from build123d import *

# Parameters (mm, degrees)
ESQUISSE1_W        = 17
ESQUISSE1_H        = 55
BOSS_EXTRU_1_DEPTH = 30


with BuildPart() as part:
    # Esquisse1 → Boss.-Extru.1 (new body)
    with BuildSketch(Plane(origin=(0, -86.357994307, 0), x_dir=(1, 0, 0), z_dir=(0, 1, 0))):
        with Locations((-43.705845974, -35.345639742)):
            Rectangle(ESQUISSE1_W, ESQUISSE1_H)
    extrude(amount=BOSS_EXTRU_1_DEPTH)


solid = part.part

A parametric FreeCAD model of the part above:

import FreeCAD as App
import Part
import Sketcher

V = App.Vector
Q = App.Units.Quantity


def add_polygon(sketch, points):
    """Adds a closed chain of lines whose ends are joined by coincident constraints."""
    first, n = sketch.GeometryCount, len(points)
    for a, b in zip(points, points[1:] + points[:1]):
        sketch.addGeometry(Part.LineSegment(App.Vector(*a, 0), App.Vector(*b, 0)), False)
    for i in range(n):
        sketch.addConstraint(Sketcher.Constraint("Coincident", first + i, 2, first + (i + 1) % n, 1))

doc = App.newDocument("Part")
params = doc.addObject("Spreadsheet::Sheet", "Params")
for row, (alias, value) in enumerate([
    ("sketch1_width", "17 mm"),
    ("sketch1_height", "55 mm"),
    ("pad1_length", "30 mm"),
], start=1):
    params.set(f"A{row}", alias)
    params.set(f"B{row}", "=" + value)
    params.setAlias(f"B{row}", alias)

body = doc.addObject("PartDesign::Body", "Body")

# Sketch on XZ plane
sketch1 = body.newObject("Sketcher::SketchObject", "Sketch")
sketch1.AttachmentSupport = (doc.getObject("XZ_Plane"), [""])
sketch1.MapMode = "FlatFace"
sketch1.AttachmentOffset = App.Placement(V(0, 0, 86.357994), App.Rotation())
add_polygon(sketch1, [(-52, 8), (-52, 63), (-35, 63), (-35, 8)])  # lines 0-3
sketch1.addConstraint(Sketcher.Constraint("Vertical", 0))
sketch1.addConstraint(Sketcher.Constraint("Horizontal", 1))
sketch1.addConstraint(Sketcher.Constraint("Vertical", 2))
sketch1.addConstraint(Sketcher.Constraint("Horizontal", 3))
sketch1.addConstraint(Sketcher.Constraint("DistanceX", 1, 1, 1, 2, Q("17 mm")))
sketch1.addConstraint(Sketcher.Constraint("DistanceY", 0, 1, 0, 2, Q("55 mm")))
sketch1.addConstraint(Sketcher.Constraint("DistanceY", -1, 1, 0, 2, Q("62.84564 mm")))
sketch1.addConstraint(Sketcher.Constraint("DistanceX", 0, 2, -1, 1, Q("52.205846 mm")))
sketch1.setExpression("Constraints[8]", "Params.sketch1_width")
sketch1.setExpression("Constraints[9]", "Params.sketch1_height")
pad1 = body.newObject("PartDesign::Pad", "Pad")
pad1.Profile = sketch1
pad1.setExpression("Length", "Params.pad1_length")
pad1.Reversed = True

doc.recompute()
